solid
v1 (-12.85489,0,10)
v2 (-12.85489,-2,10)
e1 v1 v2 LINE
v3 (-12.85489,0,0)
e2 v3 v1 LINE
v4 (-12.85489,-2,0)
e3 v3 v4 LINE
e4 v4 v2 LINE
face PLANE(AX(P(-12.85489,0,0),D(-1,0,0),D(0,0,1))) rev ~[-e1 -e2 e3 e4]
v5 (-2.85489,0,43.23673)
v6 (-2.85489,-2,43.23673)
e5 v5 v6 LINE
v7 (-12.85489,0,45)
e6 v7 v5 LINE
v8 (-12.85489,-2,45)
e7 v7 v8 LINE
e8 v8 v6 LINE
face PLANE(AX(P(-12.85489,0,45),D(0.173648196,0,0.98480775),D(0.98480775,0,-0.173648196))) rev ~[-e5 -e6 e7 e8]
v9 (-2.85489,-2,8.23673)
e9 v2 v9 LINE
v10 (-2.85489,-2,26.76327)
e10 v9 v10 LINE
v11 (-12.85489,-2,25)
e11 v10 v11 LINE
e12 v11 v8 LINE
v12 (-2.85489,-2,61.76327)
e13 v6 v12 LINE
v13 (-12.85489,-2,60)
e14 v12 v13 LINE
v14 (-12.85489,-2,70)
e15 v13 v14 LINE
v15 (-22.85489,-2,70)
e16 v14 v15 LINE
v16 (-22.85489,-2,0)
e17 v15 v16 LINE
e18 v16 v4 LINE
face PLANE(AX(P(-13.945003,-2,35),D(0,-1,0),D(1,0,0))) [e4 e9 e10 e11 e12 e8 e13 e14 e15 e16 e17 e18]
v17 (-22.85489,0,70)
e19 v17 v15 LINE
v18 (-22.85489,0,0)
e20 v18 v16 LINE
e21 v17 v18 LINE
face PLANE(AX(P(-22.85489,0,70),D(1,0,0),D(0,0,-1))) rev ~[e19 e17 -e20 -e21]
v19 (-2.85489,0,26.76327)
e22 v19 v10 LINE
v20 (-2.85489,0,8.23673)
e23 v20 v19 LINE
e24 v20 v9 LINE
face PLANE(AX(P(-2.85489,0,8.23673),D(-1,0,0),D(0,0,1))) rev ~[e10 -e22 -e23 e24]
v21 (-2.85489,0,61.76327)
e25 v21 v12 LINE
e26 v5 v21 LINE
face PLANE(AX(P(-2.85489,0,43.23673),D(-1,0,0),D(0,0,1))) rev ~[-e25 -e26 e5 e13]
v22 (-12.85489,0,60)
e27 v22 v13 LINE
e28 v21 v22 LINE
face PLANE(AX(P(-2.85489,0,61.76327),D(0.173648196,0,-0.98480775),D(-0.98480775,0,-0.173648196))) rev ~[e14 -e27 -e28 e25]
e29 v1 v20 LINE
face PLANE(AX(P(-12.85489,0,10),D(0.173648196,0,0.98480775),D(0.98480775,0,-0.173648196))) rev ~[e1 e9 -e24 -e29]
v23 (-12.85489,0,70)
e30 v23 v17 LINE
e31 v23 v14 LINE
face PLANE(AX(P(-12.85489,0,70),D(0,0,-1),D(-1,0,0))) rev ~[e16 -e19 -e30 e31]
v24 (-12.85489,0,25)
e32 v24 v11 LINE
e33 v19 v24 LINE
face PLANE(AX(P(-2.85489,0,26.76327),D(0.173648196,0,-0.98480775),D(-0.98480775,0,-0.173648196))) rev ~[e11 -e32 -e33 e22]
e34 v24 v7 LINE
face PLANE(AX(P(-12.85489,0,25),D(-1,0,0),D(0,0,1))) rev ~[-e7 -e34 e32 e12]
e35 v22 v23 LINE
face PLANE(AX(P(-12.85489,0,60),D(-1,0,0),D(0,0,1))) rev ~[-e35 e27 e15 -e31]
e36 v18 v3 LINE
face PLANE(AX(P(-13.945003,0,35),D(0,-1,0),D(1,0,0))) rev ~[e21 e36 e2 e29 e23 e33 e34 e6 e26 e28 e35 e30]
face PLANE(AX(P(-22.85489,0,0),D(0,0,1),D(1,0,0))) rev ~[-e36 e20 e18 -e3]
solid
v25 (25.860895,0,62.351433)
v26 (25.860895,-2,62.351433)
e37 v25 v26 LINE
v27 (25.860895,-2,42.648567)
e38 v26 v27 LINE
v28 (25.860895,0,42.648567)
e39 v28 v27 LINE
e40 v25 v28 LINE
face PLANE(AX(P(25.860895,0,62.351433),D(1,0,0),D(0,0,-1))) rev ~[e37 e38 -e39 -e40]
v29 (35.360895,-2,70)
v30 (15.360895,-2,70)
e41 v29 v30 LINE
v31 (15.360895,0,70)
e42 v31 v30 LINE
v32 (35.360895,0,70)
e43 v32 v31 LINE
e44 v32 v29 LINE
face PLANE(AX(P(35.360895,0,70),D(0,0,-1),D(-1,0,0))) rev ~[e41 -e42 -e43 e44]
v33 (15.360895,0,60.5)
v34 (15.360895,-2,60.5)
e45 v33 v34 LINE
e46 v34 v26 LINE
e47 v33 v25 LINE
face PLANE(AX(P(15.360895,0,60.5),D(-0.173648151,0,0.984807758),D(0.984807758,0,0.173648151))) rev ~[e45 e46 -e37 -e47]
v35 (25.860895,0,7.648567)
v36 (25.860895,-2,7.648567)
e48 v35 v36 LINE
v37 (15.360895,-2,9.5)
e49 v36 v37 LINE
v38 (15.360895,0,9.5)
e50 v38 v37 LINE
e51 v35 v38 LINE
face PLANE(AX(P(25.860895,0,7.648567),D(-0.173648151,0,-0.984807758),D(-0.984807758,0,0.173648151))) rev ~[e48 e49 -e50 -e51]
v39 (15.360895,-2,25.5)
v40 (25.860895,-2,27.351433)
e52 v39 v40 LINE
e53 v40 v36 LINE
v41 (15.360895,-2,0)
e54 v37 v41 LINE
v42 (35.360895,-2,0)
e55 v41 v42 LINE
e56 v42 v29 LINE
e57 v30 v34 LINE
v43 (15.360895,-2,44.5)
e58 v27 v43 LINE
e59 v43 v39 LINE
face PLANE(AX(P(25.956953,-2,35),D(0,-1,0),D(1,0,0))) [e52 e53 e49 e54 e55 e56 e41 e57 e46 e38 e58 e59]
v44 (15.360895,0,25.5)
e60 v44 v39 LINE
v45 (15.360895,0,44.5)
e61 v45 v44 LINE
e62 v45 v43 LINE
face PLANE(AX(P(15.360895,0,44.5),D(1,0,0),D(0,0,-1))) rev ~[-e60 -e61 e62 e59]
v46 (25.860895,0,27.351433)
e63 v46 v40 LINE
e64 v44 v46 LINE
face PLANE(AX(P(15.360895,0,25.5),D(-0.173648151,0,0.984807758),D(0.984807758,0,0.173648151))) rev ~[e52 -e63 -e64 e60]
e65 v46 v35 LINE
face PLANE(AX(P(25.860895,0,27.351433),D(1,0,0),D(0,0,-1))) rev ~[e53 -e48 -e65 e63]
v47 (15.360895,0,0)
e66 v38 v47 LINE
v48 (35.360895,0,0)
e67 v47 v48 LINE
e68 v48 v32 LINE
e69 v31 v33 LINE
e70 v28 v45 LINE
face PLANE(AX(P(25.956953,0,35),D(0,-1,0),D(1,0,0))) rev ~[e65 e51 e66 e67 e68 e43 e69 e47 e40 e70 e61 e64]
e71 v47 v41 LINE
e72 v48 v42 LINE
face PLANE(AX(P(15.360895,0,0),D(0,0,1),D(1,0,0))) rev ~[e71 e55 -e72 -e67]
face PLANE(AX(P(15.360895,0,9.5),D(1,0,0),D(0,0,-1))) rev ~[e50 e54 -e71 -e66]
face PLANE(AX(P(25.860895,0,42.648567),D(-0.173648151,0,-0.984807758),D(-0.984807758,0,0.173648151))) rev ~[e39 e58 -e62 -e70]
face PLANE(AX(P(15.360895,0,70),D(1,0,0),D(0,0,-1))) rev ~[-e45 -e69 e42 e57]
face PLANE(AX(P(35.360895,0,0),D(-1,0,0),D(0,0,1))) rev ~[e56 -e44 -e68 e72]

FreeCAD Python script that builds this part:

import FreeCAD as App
import Part
import Sketcher

V = App.Vector
Q = App.Units.Quantity

doc = App.newDocument("Part")
body = doc.addObject("PartDesign::Body", "Body")
body.AllowCompound = True

# Sketch on XZ plane
sketch1 = doc.addObject("Sketcher::SketchObject", "Sketch")
body.addObject(sketch1)
sketch1.AttachmentSupport = (doc.XZ_Plane, [""])
sketch1.MapMode = "FlatFace"
sketch1.addGeometry(Part.LineSegment(V(-23, 0, 0), V(-13, 0, 0)), False)
sketch1.addGeometry(Part.LineSegment(V(-13, 0, 0), V(-13, 10, 0)), False)
sketch1.addGeometry(Part.LineSegment(V(-13, 10, 0), V(-3, 8, 0)), False)
sketch1.addGeometry(Part.LineSegment(V(-3, 8, 0), V(-3, 27, 0)), False)
sketch1.addGeometry(Part.LineSegment(V(-3, 27, 0), V(-13, 25, 0)), False)
sketch1.addGeometry(Part.LineSegment(V(-13, 25, 0), V(-13, 45, 0)), False)
sketch1.addGeometry(Part.LineSegment(V(-13, 45, 0), V(-3, 43, 0)), False)
sketch1.addGeometry(Part.LineSegment(V(-3, 43, 0), V(-3, 62, 0)), False)
sketch1.addGeometry(Part.LineSegment(V(-3, 62, 0), V(-13, 60, 0)), False)
sketch1.addGeometry(Part.LineSegment(V(-13, 60, 0), V(-13, 70, 0)), False)
sketch1.addGeometry(Part.LineSegment(V(-13, 70, 0), V(-23, 70, 0)), False)
sketch1.addGeometry(Part.LineSegment(V(-23, 70, 0), V(-23, 0, 0)), False)
sketch1.addGeometry(Part.LineSegment(V(15, 10, 0), V(15, 0, 0)), False)
sketch1.addGeometry(Part.LineSegment(V(15, 0, 0), V(35, 0, 0)), False)
sketch1.addGeometry(Part.LineSegment(V(35, 0, 0), V(35, 70, 0)), False)
sketch1.addGeometry(Part.LineSegment(V(35, 70, 0), V(15, 70, 0)), False)
sketch1.addGeometry(Part.LineSegment(V(15, 70, 0), V(15, 60, 0)), False)
sketch1.addGeometry(Part.LineSegment(V(15, 60, 0), V(26, 62, 0)), False)
sketch1.addGeometry(Part.LineSegment(V(26, 62, 0), V(26, 43, 0)), False)
sketch1.addGeometry(Part.LineSegment(V(26, 43, 0), V(15, 44, 0)), False)
sketch1.addGeometry(Part.LineSegment(V(15, 44, 0), V(15, 26, 0)), False)
sketch1.addGeometry(Part.LineSegment(V(15, 26, 0), V(26, 27, 0)), False)
sketch1.addGeometry(Part.LineSegment(V(26, 27, 0), V(26, 8, 0)), False)
sketch1.addGeometry(Part.LineSegment(V(26, 8, 0), V(15, 10, 0)), False)
sketch1.addConstraint(Sketcher.Constraint("Coincident", 0, 2, 1, 1))
sketch1.addConstraint(Sketcher.Constraint("Coincident", 1, 2, 2, 1))
sketch1.addConstraint(Sketcher.Constraint("Coincident", 2, 2, 3, 1))
sketch1.addConstraint(Sketcher.Constraint("Coincident", 3, 2, 4, 1))
sketch1.addConstraint(Sketcher.Constraint("Coincident", 4, 2, 5, 1))
sketch1.addConstraint(Sketcher.Constraint("Coincident", 5, 2, 6, 1))
sketch1.addConstraint(Sketcher.Constraint("Coincident", 6, 2, 7, 1))
sketch1.addConstraint(Sketcher.Constraint("Coincident", 7, 2, 8, 1))
sketch1.addConstraint(Sketcher.Constraint("Coincident", 8, 2, 9, 1))
sketch1.addConstraint(Sketcher.Constraint("Coincident", 9, 2, 10, 1))
sketch1.addConstraint(Sketcher.Constraint("Coincident", 10, 2, 11, 1))
sketch1.addConstraint(Sketcher.Constraint("Coincident", 11, 2, 0, 1))
sketch1.addConstraint(Sketcher.Constraint("Coincident", 12, 2, 13, 1))
sketch1.addConstraint(Sketcher.Constraint("Coincident", 13, 2, 14, 1))
sketch1.addConstraint(Sketcher.Constraint("Coincident", 14, 2, 15, 1))
sketch1.addConstraint(Sketcher.Constraint("Coincident", 15, 2, 16, 1))
sketch1.addConstraint(Sketcher.Constraint("Coincident", 16, 2, 17, 1))
sketch1.addConstraint(Sketcher.Constraint("Coincident", 17, 2, 18, 1))
sketch1.addConstraint(Sketcher.Constraint("Coincident", 18, 2, 19, 1))
sketch1.addConstraint(Sketcher.Constraint("Coincident", 19, 2, 20, 1))
sketch1.addConstraint(Sketcher.Constraint("Coincident", 20, 2, 21, 1))
sketch1.addConstraint(Sketcher.Constraint("Coincident", 21, 2, 22, 1))
sketch1.addConstraint(Sketcher.Constraint("Coincident", 22, 2, 23, 1))
sketch1.addConstraint(Sketcher.Constraint("Coincident", 23, 2, 12, 1))
sketch1.addConstraint(Sketcher.Constraint("Horizontal", 0))
sketch1.addConstraint(Sketcher.Constraint("Vertical", 1))
sketch1.addConstraint(Sketcher.Constraint("Vertical", 3))
sketch1.addConstraint(Sketcher.Constraint("Vertical", 5))
sketch1.addConstraint(Sketcher.Constraint("Vertical", 7))
sketch1.addConstraint(Sketcher.Constraint("Vertical", 9))
sketch1.addConstraint(Sketcher.Constraint("Horizontal", 10))
sketch1.addConstraint(Sketcher.Constraint("Vertical", 11))
sketch1.addConstraint(Sketcher.Constraint("Vertical", 12))
sketch1.addConstraint(Sketcher.Constraint("Horizontal", 13))
sketch1.addConstraint(Sketcher.Constraint("Vertical", 14))
sketch1.addConstraint(Sketcher.Constraint("Horizontal", 15))
sketch1.addConstraint(Sketcher.Constraint("Vertical", 16))
sketch1.addConstraint(Sketcher.Constraint("Vertical", 18))
sketch1.addConstraint(Sketcher.Constraint("Vertical", 20))
sketch1.addConstraint(Sketcher.Constraint("Vertical", 22))
sketch1.addConstraint(Sketcher.Constraint("PointOnObject", 0, 2, -1))
sketch1.addConstraint(Sketcher.Constraint("PointOnObject", 12, 2, -1))
sketch1.addConstraint(Sketcher.Constraint("Parallel", 2, 6))
sketch1.addConstraint(Sketcher.Constraint("Parallel", 4, 8))
sketch1.addConstraint(Sketcher.Constraint("Parallel", 8, 17))
sketch1.addConstraint(Sketcher.Constraint("Parallel", 6, 19))
sketch1.addConstraint(Sketcher.Constraint("Parallel", 17, 21))
sketch1.addConstraint(Sketcher.Constraint("Parallel", 19, 23))
sketch1.addConstraint(Sketcher.Constraint("Horizontal", 10, 2, 14, 2))
sketch1.addConstraint(Sketcher.Constraint("Vertical", 1, 2, 4, 2))
sketch1.addConstraint(Sketcher.Constraint("Vertical", 3, 2, 6, 2))
sketch1.addConstraint(Sketcher.Constraint("Vertical", 5, 2, 8, 2))
sketch1.addConstraint(Sketcher.Constraint("Vertical", 12, 2, 15, 2))
sketch1.addConstraint(Sketcher.Constraint("Vertical", 16, 2, 19, 2))
sketch1.addConstraint(Sketcher.Constraint("Vertical", 18, 2, 21, 2))
sketch1.addConstraint(Sketcher.Constraint("Equal", 10, 1))
sketch1.addConstraint(Sketcher.Constraint("Equal", 15, 5))
sketch1.addConstraint(Sketcher.Constraint("Equal", 3, 7))
sketch1.addConstraint(Sketcher.Constraint("Equal", 1, 9))
sketch1.addConstraint(Sketcher.Constraint("Equal", 12, 16))
sketch1.addConstraint(Sketcher.Constraint("Equal", 18, 22))
sketch1.addConstraint(Sketcher.Constraint("Equal", 2, 4))
sketch1.addConstraint(Sketcher.Constraint("DistanceX", 0, 1, 0, 2, Q("10 mm")))
sketch1.addConstraint(Sketcher.Constraint("DistanceX", 13, 1, 13, 2, Q("20 mm")))
sketch1.addConstraint(Sketcher.Constraint("DistanceY", 11, 2, 11, 1, Q("70 mm")))
sketch1.addConstraint(Sketcher.Constraint("DistanceY", 20, 2, 20, 1, Q("19 mm")))
sketch1.addConstraint(Sketcher.Constraint("Angle", 2, Q("-10.000001 deg")))
sketch1.addConstraint(Sketcher.Constraint("DistanceY", 12, 2, 12, 1, Q("9.5 mm")))
sketch1.addConstraint(Sketcher.Constraint("DistanceX", 1, 2, 2, 2, Q("10 mm")))
sketch1.addConstraint(Sketcher.Constraint("DistanceX", 16, 2, 17, 2, Q("10.5 mm")))
sketch1.addConstraint(Sketcher.Constraint("DistanceX", 0, 2, -1, 1, Q("12.85489 mm")))
sketch1.addConstraint(Sketcher.Constraint("DistanceX", -1, 1, 12, 2, Q("15.360895 mm")))
pad1 = doc.addObject("PartDesign::Pad", "Pad")
body.addObject(pad1)
pad1.Profile = sketch1
pad1.Length = 2

doc.recompute()
